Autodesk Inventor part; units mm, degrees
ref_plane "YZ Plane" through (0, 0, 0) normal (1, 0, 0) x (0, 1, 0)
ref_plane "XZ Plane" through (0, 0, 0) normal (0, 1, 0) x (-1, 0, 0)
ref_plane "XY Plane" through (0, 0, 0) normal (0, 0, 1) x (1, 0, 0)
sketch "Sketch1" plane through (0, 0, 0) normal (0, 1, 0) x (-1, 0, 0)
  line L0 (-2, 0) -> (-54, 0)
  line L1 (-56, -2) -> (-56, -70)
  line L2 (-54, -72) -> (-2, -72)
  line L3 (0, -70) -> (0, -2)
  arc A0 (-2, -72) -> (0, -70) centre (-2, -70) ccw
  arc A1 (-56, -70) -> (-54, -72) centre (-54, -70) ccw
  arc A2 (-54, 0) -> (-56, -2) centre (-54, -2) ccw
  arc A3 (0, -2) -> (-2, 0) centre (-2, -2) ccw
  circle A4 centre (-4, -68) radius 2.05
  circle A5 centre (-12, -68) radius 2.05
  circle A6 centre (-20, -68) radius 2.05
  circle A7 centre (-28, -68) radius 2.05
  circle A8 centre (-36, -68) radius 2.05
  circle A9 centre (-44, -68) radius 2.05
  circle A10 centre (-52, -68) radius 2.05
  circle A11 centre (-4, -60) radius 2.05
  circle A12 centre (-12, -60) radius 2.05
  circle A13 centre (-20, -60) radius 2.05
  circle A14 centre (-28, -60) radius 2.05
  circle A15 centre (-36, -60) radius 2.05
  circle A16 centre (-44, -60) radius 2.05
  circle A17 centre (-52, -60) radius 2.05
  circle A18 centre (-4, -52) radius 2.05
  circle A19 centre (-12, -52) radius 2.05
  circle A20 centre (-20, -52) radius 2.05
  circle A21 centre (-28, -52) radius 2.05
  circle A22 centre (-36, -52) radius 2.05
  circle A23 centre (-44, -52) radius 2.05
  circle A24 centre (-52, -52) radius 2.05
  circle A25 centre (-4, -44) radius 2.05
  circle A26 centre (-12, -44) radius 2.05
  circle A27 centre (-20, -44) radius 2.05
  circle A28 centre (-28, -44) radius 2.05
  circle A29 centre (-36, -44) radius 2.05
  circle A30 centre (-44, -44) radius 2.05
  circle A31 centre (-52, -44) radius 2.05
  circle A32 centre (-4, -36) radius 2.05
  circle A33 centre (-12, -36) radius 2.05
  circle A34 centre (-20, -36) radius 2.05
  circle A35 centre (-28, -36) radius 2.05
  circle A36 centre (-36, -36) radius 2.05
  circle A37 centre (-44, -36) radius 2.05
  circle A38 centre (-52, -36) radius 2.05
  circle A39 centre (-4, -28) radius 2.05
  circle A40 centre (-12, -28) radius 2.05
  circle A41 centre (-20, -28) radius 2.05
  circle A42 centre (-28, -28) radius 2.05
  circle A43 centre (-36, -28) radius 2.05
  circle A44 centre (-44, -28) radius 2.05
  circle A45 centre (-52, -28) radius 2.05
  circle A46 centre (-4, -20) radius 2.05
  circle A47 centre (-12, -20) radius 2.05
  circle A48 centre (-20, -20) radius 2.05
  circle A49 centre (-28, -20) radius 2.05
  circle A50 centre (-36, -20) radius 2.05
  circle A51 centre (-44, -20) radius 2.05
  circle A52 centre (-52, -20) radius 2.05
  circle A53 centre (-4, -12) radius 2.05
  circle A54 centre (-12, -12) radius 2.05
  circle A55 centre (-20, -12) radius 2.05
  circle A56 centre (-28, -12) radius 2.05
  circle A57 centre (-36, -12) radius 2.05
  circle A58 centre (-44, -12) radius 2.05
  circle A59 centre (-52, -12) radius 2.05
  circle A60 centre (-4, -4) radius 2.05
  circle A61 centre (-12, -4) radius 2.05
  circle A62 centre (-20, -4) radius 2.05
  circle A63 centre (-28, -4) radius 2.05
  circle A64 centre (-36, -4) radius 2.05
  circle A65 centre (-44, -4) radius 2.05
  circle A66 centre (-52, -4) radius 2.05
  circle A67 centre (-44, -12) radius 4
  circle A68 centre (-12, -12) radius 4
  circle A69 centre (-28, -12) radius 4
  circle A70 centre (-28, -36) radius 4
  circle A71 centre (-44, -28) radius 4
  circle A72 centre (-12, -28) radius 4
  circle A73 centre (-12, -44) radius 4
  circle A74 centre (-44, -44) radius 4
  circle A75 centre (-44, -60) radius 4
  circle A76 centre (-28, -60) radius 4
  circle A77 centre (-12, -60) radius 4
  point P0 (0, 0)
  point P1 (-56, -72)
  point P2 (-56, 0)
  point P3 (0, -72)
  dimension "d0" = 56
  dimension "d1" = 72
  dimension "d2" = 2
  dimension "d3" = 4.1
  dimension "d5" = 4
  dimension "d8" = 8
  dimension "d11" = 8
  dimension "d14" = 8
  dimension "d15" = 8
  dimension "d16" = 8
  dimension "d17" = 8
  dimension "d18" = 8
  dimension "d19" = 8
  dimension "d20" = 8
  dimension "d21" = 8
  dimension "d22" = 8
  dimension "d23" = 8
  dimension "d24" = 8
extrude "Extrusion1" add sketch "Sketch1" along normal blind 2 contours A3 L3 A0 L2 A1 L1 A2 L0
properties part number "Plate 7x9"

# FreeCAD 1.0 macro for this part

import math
import FreeCAD as App
import Part
import Sketcher

V = App.Vector
Q = App.Units.Quantity

doc = App.newDocument("Part")
body = doc.addObject("PartDesign::Body", "Body")

# Sketch on XZ plane
sketch1 = doc.addObject("Sketcher::SketchObject", "Sketch")
body.addObject(sketch1)
sketch1.AttachmentSupport = (doc.XZ_Plane, [""])
sketch1.MapMode = "FlatFace"
sketch1.addGeometry(Part.ArcOfCircle(Part.Circle(V(2, -2, 0), V(0, 0, 1), 2), math.radians(90), math.radians(180)), False)
sketch1.addGeometry(Part.LineSegment(V(2, 0, 0), V(54, 0, 0)), False)
sketch1.addGeometry(Part.ArcOfCircle(Part.Circle(V(54, -2, 0), V(0, 0, 1), 2), math.radians(0), math.radians(90)), False)
sketch1.addGeometry(Part.LineSegment(V(56, -2, 0), V(56, -70, 0)), False)
sketch1.addGeometry(Part.ArcOfCircle(Part.Circle(V(54, -70, 0), V(0, 0, 1), 2), math.radians(-90), math.radians(0)), False)
sketch1.addGeometry(Part.LineSegment(V(54, -72, 0), V(2, -72, 0)), False)
sketch1.addGeometry(Part.ArcOfCircle(Part.Circle(V(2, -70, 0), V(0, 0, 1), 2), math.radians(180), math.radians(270)), False)
sketch1.addGeometry(Part.LineSegment(V(0, -70, 0), V(0, -2, 0)), False)
sketch1.addGeometry(Part.Circle(V(52, -68, 0), V(0, 0, 1), 2), False)
sketch1.addGeometry(Part.Circle(V(44, -68, 0), V(0, 0, 1), 2), False)
sketch1.addGeometry(Part.Circle(V(52, -60, 0), V(0, 0, 1), 2), False)
sketch1.addGeometry(Part.Circle(V(44, -60, 0), V(0, 0, 1), 4), False)
sketch1.addGeometry(Part.Circle(V(36, -68, 0), V(0, 0, 1), 2), False)
sketch1.addGeometry(Part.Circle(V(36, -60, 0), V(0, 0, 1), 2), False)
sketch1.addGeometry(Part.Circle(V(52, -52, 0), V(0, 0, 1), 2), False)
sketch1.addGeometry(Part.Circle(V(44, -52, 0), V(0, 0, 1), 2), False)
sketch1.addGeometry(Part.Circle(V(52, -44, 0), V(0, 0, 1), 2), False)
sketch1.addGeometry(Part.Circle(V(44, -44, 0), V(0, 0, 1), 4), False)
sketch1.addGeometry(Part.Circle(V(36, -52, 0), V(0, 0, 1), 2), False)
sketch1.addGeometry(Part.Circle(V(36, -44, 0), V(0, 0, 1), 2), False)
sketch1.addGeometry(Part.Circle(V(28, -68, 0), V(0, 0, 1), 2), False)
sketch1.addGeometry(Part.Circle(V(20, -68, 0), V(0, 0, 1), 2), False)
sketch1.addGeometry(Part.Circle(V(28, -60, 0), V(0, 0, 1), 4), False)
sketch1.addGeometry(Part.Circle(V(20, -60, 0), V(0, 0, 1), 2), False)
sketch1.addGeometry(Part.Circle(V(12, -68, 0), V(0, 0, 1), 2), False)
sketch1.addGeometry(Part.Circle(V(4, -68, 0), V(0, 0, 1), 2), False)
sketch1.addGeometry(Part.Circle(V(12, -60, 0), V(0, 0, 1), 4), False)
sketch1.addGeometry(Part.Circle(V(4, -60, 0), V(0, 0, 1), 2), False)
sketch1.addGeometry(Part.Circle(V(28, -52, 0), V(0, 0, 1), 2), False)
sketch1.addGeometry(Part.Circle(V(20, -52, 0), V(0, 0, 1), 2), False)
sketch1.addGeometry(Part.Circle(V(28, -44, 0), V(0, 0, 1), 2), False)
sketch1.addGeometry(Part.Circle(V(20, -44, 0), V(0, 0, 1), 2), False)
sketch1.addGeometry(Part.Circle(V(12, -52, 0), V(0, 0, 1), 2), False)
sketch1.addGeometry(Part.Circle(V(4, -52, 0), V(0, 0, 1), 2), False)
sketch1.addGeometry(Part.Circle(V(12, -44, 0), V(0, 0, 1), 4), False)
sketch1.addGeometry(Part.Circle(V(4, -44, 0), V(0, 0, 1), 2), False)
sketch1.addGeometry(Part.Circle(V(52, -36, 0), V(0, 0, 1), 2), False)
sketch1.addGeometry(Part.Circle(V(52, -28, 0), V(0, 0, 1), 2), False)
sketch1.addGeometry(Part.Circle(V(44, -36, 0), V(0, 0, 1), 2), False)
sketch1.addGeometry(Part.Circle(V(44, -28, 0), V(0, 0, 1), 4), False)
sketch1.addGeometry(Part.Circle(V(52, -20, 0), V(0, 0, 1), 2), False)
sketch1.addGeometry(Part.Circle(V(44, -20, 0), V(0, 0, 1), 2), False)
sketch1.addGeometry(Part.Circle(V(36, -36, 0), V(0, 0, 1), 2), False)
sketch1.addGeometry(Part.Circle(V(36, -28, 0), V(0, 0, 1), 2), False)
sketch1.addGeometry(Part.Circle(V(36, -20, 0), V(0, 0, 1), 2), False)
sketch1.addGeometry(Part.Circle(V(52, -12, 0), V(0, 0, 1), 2), False)
sketch1.addGeometry(Part.Circle(V(44, -12, 0), V(0, 0, 1), 4), False)
sketch1.addGeometry(Part.Circle(V(52, -4, 0), V(0, 0, 1), 2), False)
sketch1.addGeometry(Part.Circle(V(44, -4, 0), V(0, 0, 1), 2), False)
sketch1.addGeometry(Part.Circle(V(36, -12, 0), V(0, 0, 1), 2), False)
sketch1.addGeometry(Part.Circle(V(36, -4, 0), V(0, 0, 1), 2), False)
sketch1.addGeometry(Part.Circle(V(28, -36, 0), V(0, 0, 1), 4), False)
sketch1.addGeometry(Part.Circle(V(28, -28, 0), V(0, 0, 1), 2), False)
sketch1.addGeometry(Part.Circle(V(20, -36, 0), V(0, 0, 1), 2), False)
sketch1.addGeometry(Part.Circle(V(20, -28, 0), V(0, 0, 1), 2), False)
sketch1.addGeometry(Part.Circle(V(28, -20, 0), V(0, 0, 1), 2), False)
sketch1.addGeometry(Part.Circle(V(20, -20, 0), V(0, 0, 1), 2), False)
sketch1.addGeometry(Part.Circle(V(12, -36, 0), V(0, 0, 1), 2), False)
sketch1.addGeometry(Part.Circle(V(12, -28, 0), V(0, 0, 1), 4), False)
sketch1.addGeometry(Part.Circle(V(4, -36, 0), V(0, 0, 1), 2), False)
sketch1.addGeometry(Part.Circle(V(4, -28, 0), V(0, 0, 1), 2), False)
sketch1.addGeometry(Part.Circle(V(12, -20, 0), V(0, 0, 1), 2), False)
sketch1.addGeometry(Part.Circle(V(4, -20, 0), V(0, 0, 1), 2), False)
sketch1.addGeometry(Part.Circle(V(28, -12, 0), V(0, 0, 1), 4), False)
sketch1.addGeometry(Part.Circle(V(20, -12, 0), V(0, 0, 1), 2), False)
sketch1.addGeometry(Part.Circle(V(28, -4, 0), V(0, 0, 1), 2), False)
sketch1.addGeometry(Part.Circle(V(20, -4, 0), V(0, 0, 1), 2), False)
sketch1.addGeometry(Part.Circle(V(12, -12, 0), V(0, 0, 1), 4), False)
sketch1.addGeometry(Part.Circle(V(4, -12, 0), V(0, 0, 1), 2), False)
sketch1.addGeometry(Part.Circle(V(12, -4, 0), V(0, 0, 1), 2), False)
sketch1.addGeometry(Part.Circle(V(4, -4, 0), V(0, 0, 1), 2), False)
sketch1.addConstraint(Sketcher.Constraint("Tangent", 0, 1, 1, 1))
sketch1.addConstraint(Sketcher.Constraint("Tangent", 1, 2, 2, 2))
sketch1.addConstraint(Sketcher.Constraint("Tangent", 2, 1, 3, 1))
sketch1.addConstraint(Sketcher.Constraint("Tangent", 3, 2, 4, 2))
sketch1.addConstraint(Sketcher.Constraint("Tangent", 4, 1, 5, 1))
sketch1.addConstraint(Sketcher.Constraint("Tangent", 5, 2, 6, 2))
sketch1.addConstraint(Sketcher.Constraint("Tangent", 6, 1, 7, 1))
sketch1.addConstraint(Sketcher.Constraint("Tangent", 7, 2, 0, 2))
sketch1.addConstraint(Sketcher.Constraint("Horizontal", 1))
sketch1.addConstraint(Sketcher.Constraint("Vertical", 3))
sketch1.addConstraint(Sketcher.Constraint("Horizontal", 5))
sketch1.addConstraint(Sketcher.Constraint("Vertical", 7))
sketch1.addConstraint(Sketcher.Constraint("Equal", 0, 2))
sketch1.addConstraint(Sketcher.Constraint("Equal", 2, 4))
sketch1.addConstraint(Sketcher.Constraint("Equal", 4, 6))
sketch1.addConstraint(Sketcher.Constraint("Equal", 8, 9))
sketch1.addConstraint(Sketcher.Constraint("Equal", 9, 10))
sketch1.addConstraint(Sketcher.Constraint("Equal", 10, 12))
sketch1.addConstraint(Sketcher.Constraint("Equal", 12, 13))
sketch1.addConstraint(Sketcher.Constraint("Equal", 13, 14))
sketch1.addConstraint(Sketcher.Constraint("Equal", 14, 15))
sketch1.addConstraint(Sketcher.Constraint("Equal", 15, 16))
sketch1.addConstraint(Sketcher.Constraint("Equal", 11, 17))
sketch1.addConstraint(Sketcher.Constraint("Equal", 16, 18))
sketch1.addConstraint(Sketcher.Constraint("Equal", 18, 19))
sketch1.addConstraint(Sketcher.Constraint("Equal", 19, 20))
sketch1.addConstraint(Sketcher.Constraint("Equal", 20, 21))
sketch1.addConstraint(Sketcher.Constraint("Equal", 17, 22))
sketch1.addConstraint(Sketcher.Constraint("Equal", 21, 23))
sketch1.addConstraint(Sketcher.Constraint("Equal", 23, 24))
sketch1.addConstraint(Sketcher.Constraint("Equal", 24, 25))
sketch1.addConstraint(Sketcher.Constraint("Equal", 22, 26))
sketch1.addConstraint(Sketcher.Constraint("Equal", 25, 27))
sketch1.addConstraint(Sketcher.Constraint("Equal", 27, 28))
sketch1.addConstraint(Sketcher.Constraint("Equal", 28, 29))
sketch1.addConstraint(Sketcher.Constraint("Equal", 29, 30))
sketch1.addConstraint(Sketcher.Constraint("Equal", 30, 31))
sketch1.addConstraint(Sketcher.Constraint("Equal", 31, 32))
sketch1.addConstraint(Sketcher.Constraint("Equal", 32, 33))
sketch1.addConstraint(Sketcher.Constraint("Equal", 26, 34))
sketch1.addConstraint(Sketcher.Constraint("Equal", 33, 35))
sketch1.addConstraint(Sketcher.Constraint("Equal", 35, 36))
sketch1.addConstraint(Sketcher.Constraint("Equal", 36, 37))
sketch1.addConstraint(Sketcher.Constraint("Equal", 37, 38))
sketch1.addConstraint(Sketcher.Constraint("Equal", 34, 39))
sketch1.addConstraint(Sketcher.Constraint("Equal", 38, 40))
sketch1.addConstraint(Sketcher.Constraint("Equal", 40, 41))
sketch1.addConstraint(Sketcher.Constraint("Equal", 41, 42))
sketch1.addConstraint(Sketcher.Constraint("Equal", 42, 43))
sketch1.addConstraint(Sketcher.Constraint("Equal", 43, 44))
sketch1.addConstraint(Sketcher.Constraint("Equal", 44, 45))
sketch1.addConstraint(Sketcher.Constraint("Equal", 39, 46))
sketch1.addConstraint(Sketcher.Constraint("Equal", 45, 47))
sketch1.addConstraint(Sketcher.Constraint("Equal", 47, 48))
sketch1.addConstraint(Sketcher.Constraint("Equal", 48, 49))
sketch1.addConstraint(Sketcher.Constraint("Equal", 49, 50))
sketch1.addConstraint(Sketcher.Constraint("Equal", 46, 51))
sketch1.addConstraint(Sketcher.Constraint("Equal", 50, 52))
sketch1.addConstraint(Sketcher.Constraint("Equal", 52, 53))
sketch1.addConstraint(Sketcher.Constraint("Equal", 53, 54))
sketch1.addConstraint(Sketcher.Constraint("Equal", 54, 55))
sketch1.addConstraint(Sketcher.Constraint("Equal", 55, 56))
sketch1.addConstraint(Sketcher.Constraint("Equal", 56, 57))
sketch1.addConstraint(Sketcher.Constraint("Equal", 51, 58))
sketch1.addConstraint(Sketcher.Constraint("Equal", 57, 59))
sketch1.addConstraint(Sketcher.Constraint("Equal", 59, 60))
sketch1.addConstraint(Sketcher.Constraint("Equal", 60, 61))
sketch1.addConstraint(Sketcher.Constraint("Equal", 61, 62))
sketch1.addConstraint(Sketcher.Constraint("Equal", 58, 63))
sketch1.addConstraint(Sketcher.Constraint("Equal", 62, 64))
sketch1.addConstraint(Sketcher.Constraint("Equal", 64, 65))
sketch1.addConstraint(Sketcher.Constraint("Equal", 65, 66))
sketch1.addConstraint(Sketcher.Constraint("Equal", 63, 67))
sketch1.addConstraint(Sketcher.Constraint("Equal", 66, 68))
sketch1.addConstraint(Sketcher.Constraint("Equal", 68, 69))
sketch1.addConstraint(Sketcher.Constraint("Equal", 69, 70))
sketch1.addConstraint(Sketcher.Constraint("PointOnObject", 0, 1, -1))
sketch1.addConstraint(Sketcher.Constraint("PointOnObject", 6, 1, -2))
sketch1.addConstraint(Sketcher.Constraint("Horizontal", 8, 3, 9, 3))
sketch1.addConstraint(Sketcher.Constraint("Horizontal", 10, 3, 11, 3))
sketch1.addConstraint(Sketcher.Constraint("Horizontal", 9, 3, 12, 3))
sketch1.addConstraint(Sketcher.Constraint("Horizontal", 11, 3, 13, 3))
sketch1.addConstraint(Sketcher.Constraint("Horizontal", 14, 3, 15, 3))
sketch1.addConstraint(Sketcher.Constraint("Horizontal", 16, 3, 17, 3))
sketch1.addConstraint(Sketcher.Constraint("Horizontal", 15, 3, 18, 3))
sketch1.addConstraint(Sketcher.Constraint("Horizontal", 17, 3, 19, 3))
sketch1.addConstraint(Sketcher.Constraint("Horizontal", 12, 3, 20, 3))
sketch1.addConstraint(Sketcher.Constraint("Horizontal", 20, 3, 21, 3))
sketch1.addConstraint(Sketcher.Constraint("Horizontal", 13, 3, 22, 3))
sketch1.addConstraint(Sketcher.Constraint("Horizontal", 22, 3, 23, 3))
sketch1.addConstraint(Sketcher.Constraint("Horizontal", 21, 3, 24, 3))
sketch1.addConstraint(Sketcher.Constraint("Horizontal", 24, 3, 25, 3))
sketch1.addConstraint(Sketcher.Constraint("Horizontal", 23, 3, 26, 3))
sketch1.addConstraint(Sketcher.Constraint("Horizontal", 26, 3, 27, 3))
sketch1.addConstraint(Sketcher.Constraint("Horizontal", 18, 3, 28, 3))
sketch1.addConstraint(Sketcher.Constraint("Horizontal", 28, 3, 29, 3))
sketch1.addConstraint(Sketcher.Constraint("Horizontal", 19, 3, 30, 3))
sketch1.addConstraint(Sketcher.Constraint("Horizontal", 30, 3, 31, 3))
sketch1.addConstraint(Sketcher.Constraint("Horizontal", 29, 3, 32, 3))
sketch1.addConstraint(Sketcher.Constraint("Horizontal", 32, 3, 33, 3))
sketch1.addConstraint(Sketcher.Constraint("Horizontal", 31, 3, 34, 3))
sketch1.addConstraint(Sketcher.Constraint("Horizontal", 34, 3, 35, 3))
sketch1.addConstraint(Sketcher.Constraint("Horizontal", 36, 3, 38, 3))
sketch1.addConstraint(Sketcher.Constraint("Horizontal", 37, 3, 39, 3))
sketch1.addConstraint(Sketcher.Constraint("Horizontal", 40, 3, 41, 3))
sketch1.addConstraint(Sketcher.Constraint("Horizontal", 38, 3, 42, 3))
sketch1.addConstraint(Sketcher.Constraint("Horizontal", 39, 3, 43, 3))
sketch1.addConstraint(Sketcher.Constraint("Horizontal", 41, 3, 44, 3))
sketch1.addConstraint(Sketcher.Constraint("Horizontal", 45, 3, 46, 3))
sketch1.addConstraint(Sketcher.Constraint("Horizontal", 47, 3, 48, 3))
sketch1.addConstraint(Sketcher.Constraint("Horizontal", 46, 3, 49, 3))
sketch1.addConstraint(Sketcher.Constraint("Horizontal", 48, 3, 50, 3))
sketch1.addConstraint(Sketcher.Constraint("Horizontal", 42, 3, 51, 3))
sketch1.addConstraint(Sketcher.Constraint("Horizontal", 43, 3, 52, 3))
sketch1.addConstraint(Sketcher.Constraint("Horizontal", 51, 3, 53, 3))
sketch1.addConstraint(Sketcher.Constraint("Horizontal", 52, 3, 54, 3))
sketch1.addConstraint(Sketcher.Constraint("Horizontal", 44, 3, 55, 3))
sketch1.addConstraint(Sketcher.Constraint("Horizontal", 55, 3, 56, 3))
sketch1.addConstraint(Sketcher.Constraint("Horizontal", 53, 3, 57, 3))
sketch1.addConstraint(Sketcher.Constraint("Horizontal", 54, 3, 58, 3))
sketch1.addConstraint(Sketcher.Constraint("Horizontal", 57, 3, 59, 3))
sketch1.addConstraint(Sketcher.Constraint("Horizontal", 58, 3, 60, 3))
sketch1.addConstraint(Sketcher.Constraint("Horizontal", 56, 3, 61, 3))
sketch1.addConstraint(Sketcher.Constraint("Horizontal", 61, 3, 62, 3))
sketch1.addConstraint(Sketcher.Constraint("Horizontal", 49, 3, 63, 3))
sketch1.addConstraint(Sketcher.Constraint("Horizontal", 63, 3, 64, 3))
sketch1.addConstraint(Sketcher.Constraint("Horizontal", 50, 3, 65, 3))
sketch1.addConstraint(Sketcher.Constraint("Horizontal", 65, 3, 66, 3))
sketch1.addConstraint(Sketcher.Constraint("Horizontal", 64, 3, 67, 3))
sketch1.addConstraint(Sketcher.Constraint("Horizontal", 67, 3, 68, 3))
sketch1.addConstraint(Sketcher.Constraint("Horizontal", 66, 3, 69, 3))
sketch1.addConstraint(Sketcher.Constraint("Horizontal", 69, 3, 70, 3))
sketch1.addConstraint(Sketcher.Constraint("Vertical", 8, 3, 10, 3))
sketch1.addConstraint(Sketcher.Constraint("Vertical", 9, 3, 11, 3))
sketch1.addConstraint(Sketcher.Constraint("Vertical", 12, 3, 13, 3))
sketch1.addConstraint(Sketcher.Constraint("Vertical", 10, 3, 14, 3))
sketch1.addConstraint(Sketcher.Constraint("Vertical", 11, 3, 15, 3))
sketch1.addConstraint(Sketcher.Constraint("Vertical", 14, 3, 16, 3))
sketch1.addConstraint(Sketcher.Constraint("Vertical", 15, 3, 17, 3))
sketch1.addConstraint(Sketcher.Constraint("Vertical", 13, 3, 18, 3))
sketch1.addConstraint(Sketcher.Constraint("Vertical", 18, 3, 19, 3))
sketch1.addConstraint(Sketcher.Constraint("Vertical", 20, 3, 22, 3))
sketch1.addConstraint(Sketcher.Constraint("Vertical", 21, 3, 23, 3))
sketch1.addConstraint(Sketcher.Constraint("Vertical", 24, 3, 26, 3))
sketch1.addConstraint(Sketcher.Constraint("Vertical", 25, 3, 27, 3))
sketch1.addConstraint(Sketcher.Constraint("Vertical", 22, 3, 28, 3))
sketch1.addConstraint(Sketcher.Constraint("Vertical", 23, 3, 29, 3))
sketch1.addConstraint(Sketcher.Constraint("Vertical", 28, 3, 30, 3))
sketch1.addConstraint(Sketcher.Constraint("Vertical", 29, 3, 31, 3))
sketch1.addConstraint(Sketcher.Constraint("Vertical", 26, 3, 32, 3))
sketch1.addConstraint(Sketcher.Constraint("Vertical", 27, 3, 33, 3))
sketch1.addConstraint(Sketcher.Constraint("Vertical", 32, 3, 34, 3))
sketch1.addConstraint(Sketcher.Constraint("Vertical", 33, 3, 35, 3))
sketch1.addConstraint(Sketcher.Constraint("Vertical", 16, 3, 36, 3))
sketch1.addConstraint(Sketcher.Constraint("Vertical", 36, 3, 37, 3))
sketch1.addConstraint(Sketcher.Constraint("Vertical", 17, 3, 38, 3))
sketch1.addConstraint(Sketcher.Constraint("Vertical", 38, 3, 39, 3))
sketch1.addConstraint(Sketcher.Constraint("Vertical", 37, 3, 40, 3))
sketch1.addConstraint(Sketcher.Constraint("Vertical", 39, 3, 41, 3))
sketch1.addConstraint(Sketcher.Constraint("Vertical", 19, 3, 42, 3))
sketch1.addConstraint(Sketcher.Constraint("Vertical", 42, 3, 43, 3))
sketch1.addConstraint(Sketcher.Constraint("Vertical", 43, 3, 44, 3))
sketch1.addConstraint(Sketcher.Constraint("Vertical", 40, 3, 45, 3))
sketch1.addConstraint(Sketcher.Constraint("Vertical", 41, 3, 46, 3))
sketch1.addConstraint(Sketcher.Constraint("Vertical", 45, 3, 47, 3))
sketch1.addConstraint(Sketcher.Constraint("Vertical", 46, 3, 48, 3))
sketch1.addConstraint(Sketcher.Constraint("Vertical", 44, 3, 49, 3))
sketch1.addConstraint(Sketcher.Constraint("Vertical", 49, 3, 50, 3))
sketch1.addConstraint(Sketcher.Constraint("Vertical", 30, 3, 51, 3))
sketch1.addConstraint(Sketcher.Constraint("Vertical", 51, 3, 52, 3))
sketch1.addConstraint(Sketcher.Constraint("Vertical", 31, 3, 53, 3))
sketch1.addConstraint(Sketcher.Constraint("Vertical", 53, 3, 54, 3))
sketch1.addConstraint(Sketcher.Constraint("Vertical", 52, 3, 55, 3))
sketch1.addConstraint(Sketcher.Constraint("Vertical", 54, 3, 56, 3))
sketch1.addConstraint(Sketcher.Constraint("Vertical", 34, 3, 57, 3))
sketch1.addConstraint(Sketcher.Constraint("Vertical", 57, 3, 58, 3))
sketch1.addConstraint(Sketcher.Constraint("Vertical", 35, 3, 59, 3))
sketch1.addConstraint(Sketcher.Constraint("Vertical", 59, 3, 60, 3))
sketch1.addConstraint(Sketcher.Constraint("Vertical", 58, 3, 61, 3))
sketch1.addConstraint(Sketcher.Constraint("Vertical", 60, 3, 62, 3))
sketch1.addConstraint(Sketcher.Constraint("Vertical", 55, 3, 63, 3))
sketch1.addConstraint(Sketcher.Constraint("Vertical", 56, 3, 64, 3))
sketch1.addConstraint(Sketcher.Constraint("Vertical", 63, 3, 65, 3))
sketch1.addConstraint(Sketcher.Constraint("Vertical", 64, 3, 66, 3))
sketch1.addConstraint(Sketcher.Constraint("Vertical", 61, 3, 67, 3))
sketch1.addConstraint(Sketcher.Constraint("Vertical", 62, 3, 68, 3))
sketch1.addConstraint(Sketcher.Constraint("Vertical", 67, 3, 69, 3))
sketch1.addConstraint(Sketcher.Constraint("Vertical", 68, 3, 70, 3))
sketch1.addConstraint(Sketcher.Constraint("Diameter", 11, Q("8 mm")))
sketch1.addConstraint(Sketcher.Constraint("Radius", 0, Q("2 mm")))
sketch1.addConstraint(Sketcher.Constraint("Diameter", 8, Q("4.1 mm")))
sketch1.addConstraint(Sketcher.Constraint("DistanceX", -1, 1, 25, 3, Q("4 mm")))
sketch1.addConstraint(Sketcher.Constraint("DistanceY", 47, 3, -1, 1, Q("4 mm")))
sketch1.addConstraint(Sketcher.Constraint("DistanceX", -1, 1, 2, 1, Q("56 mm")))
sketch1.addConstraint(Sketcher.Constraint("DistanceY", 4, 1, -1, 1, Q("72 mm")))
sketch1.addConstraint(Sketcher.Constraint("DistanceX", -1, 1, 8, 3, Q("52 mm")))
sketch1.addConstraint(Sketcher.Constraint("DistanceY", 8, 3, -1, 1, Q("68 mm")))
sketch1.addConstraint(Sketcher.Constraint("DistanceX", -1, 1, 9, 3, Q("44 mm")))
sketch1.addConstraint(Sketcher.Constraint("DistanceY", 10, 3, -1, 1, Q("60 mm")))
sketch1.addConstraint(Sketcher.Constraint("DistanceX", -1, 1, 12, 3, Q("36 mm")))
sketch1.addConstraint(Sketcher.Constraint("DistanceY", 14, 3, -1, 1, Q("52 mm")))
sketch1.addConstraint(Sketcher.Constraint("DistanceY", 16, 3, -1, 1, Q("44 mm")))
sketch1.addConstraint(Sketcher.Constraint("DistanceX", -1, 1, 20, 3, Q("28 mm")))
sketch1.addConstraint(Sketcher.Constraint("DistanceX", -1, 1, 21, 3, Q("20 mm")))
sketch1.addConstraint(Sketcher.Constraint("DistanceX", -1, 1, 24, 3, Q("12 mm")))
sketch1.addConstraint(Sketcher.Constraint("DistanceY", 36, 3, -1, 1, Q("36 mm")))
sketch1.addConstraint(Sketcher.Constraint("DistanceY", 37, 3, -1, 1, Q("28 mm")))
sketch1.addConstraint(Sketcher.Constraint("DistanceY", 40, 3, -1, 1, Q("20 mm")))
sketch1.addConstraint(Sketcher.Constraint("DistanceY", 45, 3, -1, 1, Q("12 mm")))
pad1 = doc.addObject("PartDesign::Pad", "Pad")
body.addObject(pad1)
pad1.Profile = sketch1
pad1.Length = 2
pad1.Reversed = True

doc.recompute()
